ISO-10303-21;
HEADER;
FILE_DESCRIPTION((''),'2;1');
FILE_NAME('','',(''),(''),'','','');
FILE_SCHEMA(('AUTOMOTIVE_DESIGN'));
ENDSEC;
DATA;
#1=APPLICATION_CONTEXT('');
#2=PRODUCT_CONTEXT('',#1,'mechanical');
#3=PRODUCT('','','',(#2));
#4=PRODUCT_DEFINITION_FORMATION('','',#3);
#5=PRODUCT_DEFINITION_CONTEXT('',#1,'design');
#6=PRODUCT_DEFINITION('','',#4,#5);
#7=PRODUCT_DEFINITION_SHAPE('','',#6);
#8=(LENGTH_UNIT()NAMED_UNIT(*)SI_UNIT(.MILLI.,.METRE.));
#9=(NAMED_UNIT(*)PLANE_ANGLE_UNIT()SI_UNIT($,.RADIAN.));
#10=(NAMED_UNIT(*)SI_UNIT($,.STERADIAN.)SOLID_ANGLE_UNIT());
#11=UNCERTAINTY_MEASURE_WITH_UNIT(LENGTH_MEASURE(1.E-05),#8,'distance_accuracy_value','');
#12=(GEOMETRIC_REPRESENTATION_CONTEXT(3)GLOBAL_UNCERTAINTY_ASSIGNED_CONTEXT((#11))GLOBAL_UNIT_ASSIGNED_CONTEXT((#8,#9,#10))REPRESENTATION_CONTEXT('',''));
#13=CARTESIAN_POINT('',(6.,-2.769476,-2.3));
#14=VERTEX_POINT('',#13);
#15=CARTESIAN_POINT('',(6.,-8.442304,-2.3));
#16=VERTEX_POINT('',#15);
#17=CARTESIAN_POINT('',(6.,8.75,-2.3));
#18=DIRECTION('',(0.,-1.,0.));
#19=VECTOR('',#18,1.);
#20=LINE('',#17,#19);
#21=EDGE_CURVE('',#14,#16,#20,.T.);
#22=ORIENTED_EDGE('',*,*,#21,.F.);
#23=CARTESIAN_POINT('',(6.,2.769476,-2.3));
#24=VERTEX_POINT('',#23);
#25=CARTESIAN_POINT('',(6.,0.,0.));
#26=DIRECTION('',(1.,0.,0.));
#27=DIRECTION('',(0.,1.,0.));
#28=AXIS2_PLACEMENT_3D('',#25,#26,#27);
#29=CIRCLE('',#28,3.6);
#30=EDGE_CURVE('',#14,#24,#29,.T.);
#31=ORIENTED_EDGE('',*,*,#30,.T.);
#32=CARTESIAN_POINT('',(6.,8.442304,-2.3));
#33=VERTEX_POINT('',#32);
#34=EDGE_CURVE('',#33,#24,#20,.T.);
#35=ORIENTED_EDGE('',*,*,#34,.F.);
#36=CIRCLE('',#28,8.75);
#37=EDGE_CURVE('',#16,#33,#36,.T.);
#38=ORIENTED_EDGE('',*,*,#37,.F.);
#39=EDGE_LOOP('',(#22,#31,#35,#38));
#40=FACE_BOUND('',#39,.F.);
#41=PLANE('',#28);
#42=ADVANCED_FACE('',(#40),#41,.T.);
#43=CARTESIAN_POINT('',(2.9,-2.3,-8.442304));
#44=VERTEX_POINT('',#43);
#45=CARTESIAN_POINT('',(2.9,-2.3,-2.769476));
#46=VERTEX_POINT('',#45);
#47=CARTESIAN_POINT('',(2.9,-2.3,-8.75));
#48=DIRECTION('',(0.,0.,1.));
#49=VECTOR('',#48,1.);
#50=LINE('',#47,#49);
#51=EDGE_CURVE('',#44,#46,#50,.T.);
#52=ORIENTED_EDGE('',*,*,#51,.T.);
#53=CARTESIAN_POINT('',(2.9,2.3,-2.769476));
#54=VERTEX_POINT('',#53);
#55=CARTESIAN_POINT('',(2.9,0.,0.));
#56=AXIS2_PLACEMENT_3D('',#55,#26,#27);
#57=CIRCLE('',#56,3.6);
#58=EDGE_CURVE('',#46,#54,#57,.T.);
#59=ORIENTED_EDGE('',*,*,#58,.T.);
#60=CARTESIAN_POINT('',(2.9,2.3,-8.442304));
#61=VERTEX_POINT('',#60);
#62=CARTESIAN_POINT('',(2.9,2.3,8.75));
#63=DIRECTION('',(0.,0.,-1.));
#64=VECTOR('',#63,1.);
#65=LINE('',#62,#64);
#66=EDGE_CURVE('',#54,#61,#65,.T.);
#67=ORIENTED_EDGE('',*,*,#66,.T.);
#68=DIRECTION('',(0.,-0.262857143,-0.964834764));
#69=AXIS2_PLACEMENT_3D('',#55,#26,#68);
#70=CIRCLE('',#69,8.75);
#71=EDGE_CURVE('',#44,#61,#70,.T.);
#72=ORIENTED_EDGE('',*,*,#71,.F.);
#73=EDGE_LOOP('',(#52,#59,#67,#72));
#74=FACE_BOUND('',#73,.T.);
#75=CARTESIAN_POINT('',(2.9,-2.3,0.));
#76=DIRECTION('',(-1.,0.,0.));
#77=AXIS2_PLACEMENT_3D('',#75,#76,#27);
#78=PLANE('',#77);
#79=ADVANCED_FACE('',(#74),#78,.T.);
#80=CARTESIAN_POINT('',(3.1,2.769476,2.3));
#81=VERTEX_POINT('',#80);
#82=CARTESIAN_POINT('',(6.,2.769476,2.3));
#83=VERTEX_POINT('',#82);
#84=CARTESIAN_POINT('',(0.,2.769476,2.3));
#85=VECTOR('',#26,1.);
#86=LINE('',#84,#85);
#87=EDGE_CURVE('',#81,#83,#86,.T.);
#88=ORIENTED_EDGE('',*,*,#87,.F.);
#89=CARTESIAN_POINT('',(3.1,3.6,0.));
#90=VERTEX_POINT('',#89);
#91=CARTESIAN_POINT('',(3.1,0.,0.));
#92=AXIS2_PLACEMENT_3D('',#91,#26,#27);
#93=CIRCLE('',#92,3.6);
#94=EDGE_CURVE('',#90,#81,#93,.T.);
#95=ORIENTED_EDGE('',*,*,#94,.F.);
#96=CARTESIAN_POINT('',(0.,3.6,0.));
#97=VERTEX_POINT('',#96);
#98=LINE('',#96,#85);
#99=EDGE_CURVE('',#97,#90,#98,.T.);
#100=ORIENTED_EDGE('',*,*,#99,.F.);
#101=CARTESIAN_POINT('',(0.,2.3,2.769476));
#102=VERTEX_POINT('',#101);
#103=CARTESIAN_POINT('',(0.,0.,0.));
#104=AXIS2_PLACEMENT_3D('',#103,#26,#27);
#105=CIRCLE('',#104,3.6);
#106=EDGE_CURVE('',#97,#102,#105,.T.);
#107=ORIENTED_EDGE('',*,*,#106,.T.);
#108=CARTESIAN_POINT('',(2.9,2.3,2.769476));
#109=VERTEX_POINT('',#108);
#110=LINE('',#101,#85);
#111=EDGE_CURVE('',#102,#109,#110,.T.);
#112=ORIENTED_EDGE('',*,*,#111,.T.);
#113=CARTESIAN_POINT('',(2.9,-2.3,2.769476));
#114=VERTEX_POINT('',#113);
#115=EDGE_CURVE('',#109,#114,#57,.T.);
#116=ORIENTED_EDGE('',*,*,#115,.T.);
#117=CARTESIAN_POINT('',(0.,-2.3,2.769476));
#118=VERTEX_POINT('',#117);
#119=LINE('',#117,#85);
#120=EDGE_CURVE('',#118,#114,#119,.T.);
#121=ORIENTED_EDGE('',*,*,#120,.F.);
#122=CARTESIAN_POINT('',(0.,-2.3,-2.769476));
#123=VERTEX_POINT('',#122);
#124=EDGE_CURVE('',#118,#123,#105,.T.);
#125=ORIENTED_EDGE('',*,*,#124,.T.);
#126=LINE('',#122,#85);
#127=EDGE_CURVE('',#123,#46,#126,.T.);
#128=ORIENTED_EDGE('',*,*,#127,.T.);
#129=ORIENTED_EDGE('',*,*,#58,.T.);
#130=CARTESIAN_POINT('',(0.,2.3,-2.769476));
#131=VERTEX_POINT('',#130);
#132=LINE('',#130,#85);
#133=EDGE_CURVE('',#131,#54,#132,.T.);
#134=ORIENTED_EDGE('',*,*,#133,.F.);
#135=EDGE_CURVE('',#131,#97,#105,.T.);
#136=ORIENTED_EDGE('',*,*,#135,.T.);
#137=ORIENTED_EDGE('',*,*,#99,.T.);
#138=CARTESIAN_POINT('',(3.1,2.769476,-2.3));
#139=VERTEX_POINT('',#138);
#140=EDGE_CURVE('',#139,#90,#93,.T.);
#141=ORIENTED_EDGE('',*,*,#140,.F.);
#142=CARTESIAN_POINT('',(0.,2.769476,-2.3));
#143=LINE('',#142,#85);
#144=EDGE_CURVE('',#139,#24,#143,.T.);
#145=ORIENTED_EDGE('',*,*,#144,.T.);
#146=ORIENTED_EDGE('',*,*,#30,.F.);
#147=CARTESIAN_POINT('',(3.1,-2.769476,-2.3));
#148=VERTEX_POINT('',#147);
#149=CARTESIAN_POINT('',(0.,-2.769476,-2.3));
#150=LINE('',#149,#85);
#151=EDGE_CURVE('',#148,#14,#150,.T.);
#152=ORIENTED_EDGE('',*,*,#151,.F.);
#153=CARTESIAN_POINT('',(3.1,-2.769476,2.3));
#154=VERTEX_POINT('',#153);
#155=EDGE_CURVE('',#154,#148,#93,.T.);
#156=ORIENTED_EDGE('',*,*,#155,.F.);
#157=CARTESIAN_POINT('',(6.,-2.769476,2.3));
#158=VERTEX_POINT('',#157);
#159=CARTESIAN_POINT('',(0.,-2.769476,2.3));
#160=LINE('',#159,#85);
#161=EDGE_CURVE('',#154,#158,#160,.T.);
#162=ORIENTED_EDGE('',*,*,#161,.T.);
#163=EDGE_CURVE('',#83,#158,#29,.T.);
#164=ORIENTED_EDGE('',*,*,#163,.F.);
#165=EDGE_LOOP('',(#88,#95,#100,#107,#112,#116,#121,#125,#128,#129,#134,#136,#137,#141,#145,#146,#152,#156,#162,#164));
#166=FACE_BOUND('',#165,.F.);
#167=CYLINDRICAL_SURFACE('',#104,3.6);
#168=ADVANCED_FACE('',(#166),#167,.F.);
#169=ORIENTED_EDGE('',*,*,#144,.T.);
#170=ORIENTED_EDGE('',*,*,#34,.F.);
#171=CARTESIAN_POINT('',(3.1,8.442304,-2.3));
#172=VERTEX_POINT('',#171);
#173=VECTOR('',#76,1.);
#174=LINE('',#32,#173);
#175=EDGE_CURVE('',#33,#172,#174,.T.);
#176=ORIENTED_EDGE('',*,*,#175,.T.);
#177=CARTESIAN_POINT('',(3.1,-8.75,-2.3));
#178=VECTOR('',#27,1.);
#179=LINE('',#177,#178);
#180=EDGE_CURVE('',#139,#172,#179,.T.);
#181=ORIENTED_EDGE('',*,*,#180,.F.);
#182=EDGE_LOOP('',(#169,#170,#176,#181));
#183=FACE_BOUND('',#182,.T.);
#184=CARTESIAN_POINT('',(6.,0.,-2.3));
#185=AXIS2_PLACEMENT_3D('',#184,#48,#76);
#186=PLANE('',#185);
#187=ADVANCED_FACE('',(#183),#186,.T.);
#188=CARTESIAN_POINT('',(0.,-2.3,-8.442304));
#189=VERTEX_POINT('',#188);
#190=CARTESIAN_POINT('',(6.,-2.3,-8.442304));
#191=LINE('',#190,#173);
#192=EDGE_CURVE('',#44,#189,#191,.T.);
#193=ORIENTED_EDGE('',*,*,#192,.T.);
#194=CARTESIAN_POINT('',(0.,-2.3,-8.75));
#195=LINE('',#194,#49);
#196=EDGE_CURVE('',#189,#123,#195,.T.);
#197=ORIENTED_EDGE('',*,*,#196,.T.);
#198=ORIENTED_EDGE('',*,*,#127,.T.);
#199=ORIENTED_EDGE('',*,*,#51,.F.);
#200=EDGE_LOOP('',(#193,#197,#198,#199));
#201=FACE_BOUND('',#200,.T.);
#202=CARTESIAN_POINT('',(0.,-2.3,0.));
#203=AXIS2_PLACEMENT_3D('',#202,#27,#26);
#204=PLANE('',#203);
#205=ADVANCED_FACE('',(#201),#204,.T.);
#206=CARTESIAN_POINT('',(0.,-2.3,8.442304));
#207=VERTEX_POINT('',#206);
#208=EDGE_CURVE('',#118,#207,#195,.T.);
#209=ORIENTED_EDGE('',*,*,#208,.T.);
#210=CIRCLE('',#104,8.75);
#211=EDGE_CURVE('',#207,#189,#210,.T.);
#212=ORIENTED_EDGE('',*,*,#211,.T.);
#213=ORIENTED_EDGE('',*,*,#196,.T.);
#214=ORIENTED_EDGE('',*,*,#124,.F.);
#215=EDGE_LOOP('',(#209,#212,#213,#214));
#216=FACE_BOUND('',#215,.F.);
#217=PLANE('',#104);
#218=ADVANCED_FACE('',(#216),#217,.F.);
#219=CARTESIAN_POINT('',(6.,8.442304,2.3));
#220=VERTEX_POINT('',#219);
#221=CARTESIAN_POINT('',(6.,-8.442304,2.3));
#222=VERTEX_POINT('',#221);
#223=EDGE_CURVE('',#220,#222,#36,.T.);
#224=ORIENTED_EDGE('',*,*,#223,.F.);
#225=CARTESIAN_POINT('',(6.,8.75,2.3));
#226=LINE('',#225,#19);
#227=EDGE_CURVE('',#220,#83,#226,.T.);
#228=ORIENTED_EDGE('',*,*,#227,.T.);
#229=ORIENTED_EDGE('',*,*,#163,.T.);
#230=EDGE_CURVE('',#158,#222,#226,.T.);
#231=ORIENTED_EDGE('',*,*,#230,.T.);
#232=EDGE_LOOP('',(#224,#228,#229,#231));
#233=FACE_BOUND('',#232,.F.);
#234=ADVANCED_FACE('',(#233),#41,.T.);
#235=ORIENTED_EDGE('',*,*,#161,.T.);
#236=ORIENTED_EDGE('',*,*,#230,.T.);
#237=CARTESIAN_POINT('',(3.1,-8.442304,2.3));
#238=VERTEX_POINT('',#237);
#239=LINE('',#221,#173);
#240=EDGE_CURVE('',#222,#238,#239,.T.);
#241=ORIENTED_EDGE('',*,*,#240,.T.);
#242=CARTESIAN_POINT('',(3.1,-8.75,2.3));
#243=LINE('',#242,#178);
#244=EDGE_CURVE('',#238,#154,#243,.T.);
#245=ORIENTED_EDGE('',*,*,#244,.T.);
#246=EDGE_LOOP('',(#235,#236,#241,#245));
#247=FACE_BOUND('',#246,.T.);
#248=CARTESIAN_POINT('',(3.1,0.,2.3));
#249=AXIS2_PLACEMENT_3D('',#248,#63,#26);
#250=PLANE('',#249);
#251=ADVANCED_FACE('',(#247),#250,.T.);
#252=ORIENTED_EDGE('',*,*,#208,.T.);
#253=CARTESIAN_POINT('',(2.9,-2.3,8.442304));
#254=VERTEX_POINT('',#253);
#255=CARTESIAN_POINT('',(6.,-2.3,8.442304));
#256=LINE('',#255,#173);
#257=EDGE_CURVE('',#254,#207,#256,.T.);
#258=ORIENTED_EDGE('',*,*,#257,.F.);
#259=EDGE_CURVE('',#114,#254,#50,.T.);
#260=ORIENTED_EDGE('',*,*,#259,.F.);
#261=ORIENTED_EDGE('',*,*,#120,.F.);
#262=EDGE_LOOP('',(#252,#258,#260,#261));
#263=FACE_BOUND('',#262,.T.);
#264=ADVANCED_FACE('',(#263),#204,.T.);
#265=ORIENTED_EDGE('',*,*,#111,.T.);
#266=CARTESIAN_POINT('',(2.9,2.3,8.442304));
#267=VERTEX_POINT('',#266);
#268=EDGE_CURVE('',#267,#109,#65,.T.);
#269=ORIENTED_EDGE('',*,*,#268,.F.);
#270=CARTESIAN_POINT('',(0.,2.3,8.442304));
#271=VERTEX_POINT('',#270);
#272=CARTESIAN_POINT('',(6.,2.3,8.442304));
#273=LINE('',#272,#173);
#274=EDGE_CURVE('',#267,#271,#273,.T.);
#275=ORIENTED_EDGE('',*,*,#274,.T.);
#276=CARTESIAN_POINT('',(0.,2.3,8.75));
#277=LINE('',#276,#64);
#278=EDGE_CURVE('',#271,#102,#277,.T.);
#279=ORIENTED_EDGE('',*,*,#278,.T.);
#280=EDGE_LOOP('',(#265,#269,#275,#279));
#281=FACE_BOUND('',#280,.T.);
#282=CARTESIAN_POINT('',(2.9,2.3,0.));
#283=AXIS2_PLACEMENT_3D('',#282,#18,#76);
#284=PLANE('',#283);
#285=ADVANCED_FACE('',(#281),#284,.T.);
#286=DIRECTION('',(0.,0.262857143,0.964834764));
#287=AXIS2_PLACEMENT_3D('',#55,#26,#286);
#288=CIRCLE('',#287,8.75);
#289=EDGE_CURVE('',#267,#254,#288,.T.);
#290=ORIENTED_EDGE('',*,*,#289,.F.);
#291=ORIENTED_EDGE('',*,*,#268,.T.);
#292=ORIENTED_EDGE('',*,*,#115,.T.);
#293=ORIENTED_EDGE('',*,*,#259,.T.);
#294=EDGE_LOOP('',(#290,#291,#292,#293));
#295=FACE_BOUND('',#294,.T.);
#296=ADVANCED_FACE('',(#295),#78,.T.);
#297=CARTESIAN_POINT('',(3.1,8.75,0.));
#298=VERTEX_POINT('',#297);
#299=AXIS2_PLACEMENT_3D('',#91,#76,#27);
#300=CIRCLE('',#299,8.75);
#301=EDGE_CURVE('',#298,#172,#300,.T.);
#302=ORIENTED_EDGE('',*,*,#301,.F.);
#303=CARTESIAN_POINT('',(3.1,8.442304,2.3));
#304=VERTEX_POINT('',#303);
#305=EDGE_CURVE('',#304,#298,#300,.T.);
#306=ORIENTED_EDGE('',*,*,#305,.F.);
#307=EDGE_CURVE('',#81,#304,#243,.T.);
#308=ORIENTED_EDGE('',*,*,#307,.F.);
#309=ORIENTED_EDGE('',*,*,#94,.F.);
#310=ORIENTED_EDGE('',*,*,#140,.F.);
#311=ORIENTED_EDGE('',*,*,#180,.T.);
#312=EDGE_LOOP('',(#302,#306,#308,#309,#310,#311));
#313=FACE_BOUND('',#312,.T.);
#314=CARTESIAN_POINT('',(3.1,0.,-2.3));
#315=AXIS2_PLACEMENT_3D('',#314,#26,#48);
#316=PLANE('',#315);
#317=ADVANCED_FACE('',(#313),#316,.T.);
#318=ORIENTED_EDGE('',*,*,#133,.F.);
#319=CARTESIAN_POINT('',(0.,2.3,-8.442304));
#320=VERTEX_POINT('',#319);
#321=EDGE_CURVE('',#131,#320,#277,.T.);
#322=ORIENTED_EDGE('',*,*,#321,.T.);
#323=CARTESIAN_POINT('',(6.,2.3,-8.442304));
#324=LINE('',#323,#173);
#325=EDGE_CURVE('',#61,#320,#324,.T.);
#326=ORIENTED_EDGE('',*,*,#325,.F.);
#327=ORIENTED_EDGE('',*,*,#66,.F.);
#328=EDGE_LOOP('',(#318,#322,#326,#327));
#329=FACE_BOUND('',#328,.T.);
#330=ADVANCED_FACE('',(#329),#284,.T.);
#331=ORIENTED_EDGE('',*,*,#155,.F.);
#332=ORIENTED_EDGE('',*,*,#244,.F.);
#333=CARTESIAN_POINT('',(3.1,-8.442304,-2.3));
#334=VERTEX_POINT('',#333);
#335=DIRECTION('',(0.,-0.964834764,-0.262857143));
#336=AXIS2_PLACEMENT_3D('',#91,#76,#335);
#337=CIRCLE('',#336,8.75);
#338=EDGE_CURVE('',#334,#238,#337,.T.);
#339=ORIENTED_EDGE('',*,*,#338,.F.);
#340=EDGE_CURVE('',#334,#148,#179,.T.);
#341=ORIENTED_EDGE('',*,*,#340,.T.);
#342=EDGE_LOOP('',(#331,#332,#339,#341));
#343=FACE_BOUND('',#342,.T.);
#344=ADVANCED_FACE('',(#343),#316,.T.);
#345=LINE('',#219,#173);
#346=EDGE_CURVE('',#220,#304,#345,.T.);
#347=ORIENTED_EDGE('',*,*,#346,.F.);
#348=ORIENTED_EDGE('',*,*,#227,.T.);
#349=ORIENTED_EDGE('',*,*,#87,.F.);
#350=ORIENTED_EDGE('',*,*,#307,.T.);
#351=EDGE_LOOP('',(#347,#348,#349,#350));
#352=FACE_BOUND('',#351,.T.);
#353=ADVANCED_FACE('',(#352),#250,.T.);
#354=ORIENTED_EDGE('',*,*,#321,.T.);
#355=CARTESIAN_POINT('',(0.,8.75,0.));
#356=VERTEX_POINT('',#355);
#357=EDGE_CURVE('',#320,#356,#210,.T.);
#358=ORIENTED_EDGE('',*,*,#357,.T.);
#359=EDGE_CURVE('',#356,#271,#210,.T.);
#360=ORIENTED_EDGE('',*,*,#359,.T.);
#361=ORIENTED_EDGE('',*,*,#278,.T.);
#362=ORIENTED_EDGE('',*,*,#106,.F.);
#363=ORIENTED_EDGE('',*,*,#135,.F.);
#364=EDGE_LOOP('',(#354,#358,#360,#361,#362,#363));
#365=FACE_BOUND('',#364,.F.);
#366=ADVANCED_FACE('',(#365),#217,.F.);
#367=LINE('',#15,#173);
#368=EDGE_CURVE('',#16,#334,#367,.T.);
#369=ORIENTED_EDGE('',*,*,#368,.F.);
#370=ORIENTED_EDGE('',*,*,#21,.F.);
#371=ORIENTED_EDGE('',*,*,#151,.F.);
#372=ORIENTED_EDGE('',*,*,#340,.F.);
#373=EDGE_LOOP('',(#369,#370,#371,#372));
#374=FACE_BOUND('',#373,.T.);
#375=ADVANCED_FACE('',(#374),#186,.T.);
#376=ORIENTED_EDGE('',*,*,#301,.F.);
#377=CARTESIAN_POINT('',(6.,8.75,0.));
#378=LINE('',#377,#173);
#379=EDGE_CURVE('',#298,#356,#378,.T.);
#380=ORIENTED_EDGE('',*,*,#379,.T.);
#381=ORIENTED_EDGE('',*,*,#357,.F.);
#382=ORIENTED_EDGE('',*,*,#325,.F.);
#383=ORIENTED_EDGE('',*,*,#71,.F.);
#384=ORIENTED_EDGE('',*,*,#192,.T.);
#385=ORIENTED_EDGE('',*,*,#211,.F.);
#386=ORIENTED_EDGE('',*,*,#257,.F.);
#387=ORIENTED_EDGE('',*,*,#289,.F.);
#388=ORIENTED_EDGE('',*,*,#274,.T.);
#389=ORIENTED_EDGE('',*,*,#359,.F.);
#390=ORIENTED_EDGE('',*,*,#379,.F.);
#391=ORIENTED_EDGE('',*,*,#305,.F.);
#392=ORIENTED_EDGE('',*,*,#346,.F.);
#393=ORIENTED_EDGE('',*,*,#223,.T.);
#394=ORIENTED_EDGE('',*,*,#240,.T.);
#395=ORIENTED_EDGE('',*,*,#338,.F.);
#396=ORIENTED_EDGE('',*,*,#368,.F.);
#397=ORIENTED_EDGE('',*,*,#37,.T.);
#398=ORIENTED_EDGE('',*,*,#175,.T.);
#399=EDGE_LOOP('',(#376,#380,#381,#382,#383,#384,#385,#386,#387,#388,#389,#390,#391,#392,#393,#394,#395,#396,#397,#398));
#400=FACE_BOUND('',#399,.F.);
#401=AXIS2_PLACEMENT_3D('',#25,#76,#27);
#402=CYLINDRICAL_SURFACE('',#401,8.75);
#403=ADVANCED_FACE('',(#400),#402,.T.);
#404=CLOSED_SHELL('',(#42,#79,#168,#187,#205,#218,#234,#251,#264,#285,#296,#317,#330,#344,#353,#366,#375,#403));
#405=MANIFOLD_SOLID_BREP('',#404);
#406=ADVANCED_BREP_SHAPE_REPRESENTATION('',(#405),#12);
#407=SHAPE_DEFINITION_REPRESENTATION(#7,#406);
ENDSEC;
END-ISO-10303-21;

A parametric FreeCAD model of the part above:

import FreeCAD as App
import Part
import Sketcher
Q = App.Units.Quantity

doc = App.newDocument("Part")
params = doc.addObject("Spreadsheet::Sheet", "Params")
for row, (alias, value) in enumerate([
    ("sketch1_width", "6 mm"),
    ("sketch1_height", "5.15 mm"),
    ("revolution_angle", "360 deg"),
    ("sketch2_width", "2.9 mm"),
    ("sketch2_height", "4.6 mm"),
    ("pocket1_length", "17.5 mm"),
    ("sketch3_width", "2.9 mm"),
    ("sketch3_height", "4.6 mm"),
    ("pocket2_length", "17.5 mm"),
], start=1):
    params.set(f"A{row}", alias)
    params.set(f"B{row}", "=" + value)
    params.setAlias(f"B{row}", alias)

body = doc.addObject("PartDesign::Body", "Body")

# Sketch on XY plane
sketch1 = doc.addObject("Sketcher::SketchObject", "Sketch")
body.addObject(sketch1)
sketch1.AttachmentSupport = (doc.XY_Plane, [""])
sketch1.MapMode = "FlatFace"
sketch1.addGeometry(Part.LineSegment(App.Vector(6, 9, 0), App.Vector(0, 9, 0)), False)
sketch1.addGeometry(Part.LineSegment(App.Vector(0, 9, 0), App.Vector(0, 4, 0)), False)
sketch1.addGeometry(Part.LineSegment(App.Vector(0, 4, 0), App.Vector(6, 4, 0)), False)
sketch1.addGeometry(Part.LineSegment(App.Vector(6, 4, 0), App.Vector(6, 9, 0)), False)
sketch1.addConstraint(Sketcher.Constraint("Coincident", 0, 2, 1, 1))
sketch1.addConstraint(Sketcher.Constraint("Coincident", 1, 2, 2, 1))
sketch1.addConstraint(Sketcher.Constraint("Coincident", 2, 2, 3, 1))
sketch1.addConstraint(Sketcher.Constraint("Coincident", 3, 2, 0, 1))
sketch1.addConstraint(Sketcher.Constraint("Horizontal", 0))
sketch1.addConstraint(Sketcher.Constraint("Vertical", 1))
sketch1.addConstraint(Sketcher.Constraint("Horizontal", 2))
sketch1.addConstraint(Sketcher.Constraint("Vertical", 3))
sketch1.addConstraint(Sketcher.Constraint("PointOnObject", 0, 2, -2))
sketch1.addConstraint(Sketcher.Constraint("DistanceX", 0, 2, 0, 1, Q("6 mm")))
sketch1.addConstraint(Sketcher.Constraint("DistanceY", 1, 2, 1, 1, Q("5.15 mm")))
sketch1.addConstraint(Sketcher.Constraint("DistanceY", -1, 1, 1, 2, Q("3.6 mm")))
sketch1.setExpression("Constraints[9]", "Params.sketch1_width")
sketch1.setExpression("Constraints[10]", "Params.sketch1_height")
revolution = doc.addObject("PartDesign::Revolution", "Revolution")
body.addObject(revolution)
revolution.Profile = sketch1
revolution.ReferenceAxis = (sketch1, ["H_Axis"])
revolution.setExpression("Angle", "Params.revolution_angle")

# Sketch on XY plane
sketch2 = doc.addObject("Sketcher::SketchObject", "Sketch001")
body.addObject(sketch2)
sketch2.AttachmentSupport = (doc.XY_Plane, [""])
sketch2.MapMode = "FlatFace"
sketch2.addGeometry(Part.LineSegment(App.Vector(0, 2.3, 0), App.Vector(0, -2.3, 0)), False)
sketch2.addGeometry(Part.LineSegment(App.Vector(0, -2.3, 0), App.Vector(2.9, -2.3, 0)), False)
sketch2.addGeometry(Part.LineSegment(App.Vector(2.9, -2.3, 0), App.Vector(2.9, 2.3, 0)), False)
sketch2.addGeometry(Part.LineSegment(App.Vector(2.9, 2.3, 0), App.Vector(0, 2.3, 0)), False)
sketch2.addConstraint(Sketcher.Constraint("Coincident", 0, 2, 1, 1))
sketch2.addConstraint(Sketcher.Constraint("Coincident", 1, 2, 2, 1))
sketch2.addConstraint(Sketcher.Constraint("Coincident", 2, 2, 3, 1))
sketch2.addConstraint(Sketcher.Constraint("Coincident", 3, 2, 0, 1))
sketch2.addConstraint(Sketcher.Constraint("Vertical", 0))
sketch2.addConstraint(Sketcher.Constraint("Horizontal", 1))
sketch2.addConstraint(Sketcher.Constraint("Vertical", 2))
sketch2.addConstraint(Sketcher.Constraint("Horizontal", 3))
sketch2.addConstraint(Sketcher.Constraint("Symmetric", 0, 2, 3, 2, -1, 1))
sketch2.addConstraint(Sketcher.Constraint("DistanceX", 1, 1, 1, 2, Q("2.9 mm")))
sketch2.addConstraint(Sketcher.Constraint("DistanceY", 0, 2, 0, 1, Q("4.6 mm")))
sketch2.setExpression("Constraints[9]", "Params.sketch2_width")
sketch2.setExpression("Constraints[10]", "Params.sketch2_height")
pocket1 = doc.addObject("PartDesign::Pocket", "Pocket")
body.addObject(pocket1)
pocket1.Profile = sketch2
pocket1.setExpression("Length", "Params.pocket1_length")
pocket1.Midplane = True

# Sketch on XZ plane
sketch3 = doc.addObject("Sketcher::SketchObject", "Sketch002")
body.addObject(sketch3)
sketch3.AttachmentSupport = (doc.XZ_Plane, [""])
sketch3.MapMode = "FlatFace"
sketch3.addGeometry(Part.LineSegment(App.Vector(6, -2.3, 0), App.Vector(3.1, -2.3, 0)), False)
sketch3.addGeometry(Part.LineSegment(App.Vector(3.1, -2.3, 0), App.Vector(3.1, 2.3, 0)), False)
sketch3.addGeometry(Part.LineSegment(App.Vector(3.1, 2.3, 0), App.Vector(6, 2.3, 0)), False)
sketch3.addGeometry(Part.LineSegment(App.Vector(6, 2.3, 0), App.Vector(6, -2.3, 0)), False)
sketch3.addConstraint(Sketcher.Constraint("Coincident", 0, 2, 1, 1))
sketch3.addConstraint(Sketcher.Constraint("Coincident", 1, 2, 2, 1))
sketch3.addConstraint(Sketcher.Constraint("Coincident", 2, 2, 3, 1))
sketch3.addConstraint(Sketcher.Constraint("Coincident", 3, 2, 0, 1))
sketch3.addConstraint(Sketcher.Constraint("Horizontal", 0))
sketch3.addConstraint(Sketcher.Constraint("Vertical", 1))
sketch3.addConstraint(Sketcher.Constraint("Horizontal", 2))
sketch3.addConstraint(Sketcher.Constraint("Vertical", 3))
sketch3.addConstraint(Sketcher.Constraint("DistanceX", 0, 2, 0, 1, Q("2.9 mm")))
sketch3.addConstraint(Sketcher.Constraint("DistanceY", 1, 1, 1, 2, Q("4.6 mm")))
sketch3.addConstraint(Sketcher.Constraint("DistanceX", -1, 1, 2, 2, Q("6 mm")))
sketch3.addConstraint(Sketcher.Constraint("DistanceY", 0, 2, -1, 1, Q("2.3 mm")))
sketch3.setExpression("Constraints[8]", "Params.sketch3_width")
sketch3.setExpression("Constraints[9]", "Params.sketch3_height")
pocket2 = doc.addObject("PartDesign::Pocket", "Pocket001")
body.addObject(pocket2)
pocket2.Profile = sketch3
pocket2.setExpression("Length", "Params.pocket2_length")
pocket2.Midplane = True

doc.recompute()
